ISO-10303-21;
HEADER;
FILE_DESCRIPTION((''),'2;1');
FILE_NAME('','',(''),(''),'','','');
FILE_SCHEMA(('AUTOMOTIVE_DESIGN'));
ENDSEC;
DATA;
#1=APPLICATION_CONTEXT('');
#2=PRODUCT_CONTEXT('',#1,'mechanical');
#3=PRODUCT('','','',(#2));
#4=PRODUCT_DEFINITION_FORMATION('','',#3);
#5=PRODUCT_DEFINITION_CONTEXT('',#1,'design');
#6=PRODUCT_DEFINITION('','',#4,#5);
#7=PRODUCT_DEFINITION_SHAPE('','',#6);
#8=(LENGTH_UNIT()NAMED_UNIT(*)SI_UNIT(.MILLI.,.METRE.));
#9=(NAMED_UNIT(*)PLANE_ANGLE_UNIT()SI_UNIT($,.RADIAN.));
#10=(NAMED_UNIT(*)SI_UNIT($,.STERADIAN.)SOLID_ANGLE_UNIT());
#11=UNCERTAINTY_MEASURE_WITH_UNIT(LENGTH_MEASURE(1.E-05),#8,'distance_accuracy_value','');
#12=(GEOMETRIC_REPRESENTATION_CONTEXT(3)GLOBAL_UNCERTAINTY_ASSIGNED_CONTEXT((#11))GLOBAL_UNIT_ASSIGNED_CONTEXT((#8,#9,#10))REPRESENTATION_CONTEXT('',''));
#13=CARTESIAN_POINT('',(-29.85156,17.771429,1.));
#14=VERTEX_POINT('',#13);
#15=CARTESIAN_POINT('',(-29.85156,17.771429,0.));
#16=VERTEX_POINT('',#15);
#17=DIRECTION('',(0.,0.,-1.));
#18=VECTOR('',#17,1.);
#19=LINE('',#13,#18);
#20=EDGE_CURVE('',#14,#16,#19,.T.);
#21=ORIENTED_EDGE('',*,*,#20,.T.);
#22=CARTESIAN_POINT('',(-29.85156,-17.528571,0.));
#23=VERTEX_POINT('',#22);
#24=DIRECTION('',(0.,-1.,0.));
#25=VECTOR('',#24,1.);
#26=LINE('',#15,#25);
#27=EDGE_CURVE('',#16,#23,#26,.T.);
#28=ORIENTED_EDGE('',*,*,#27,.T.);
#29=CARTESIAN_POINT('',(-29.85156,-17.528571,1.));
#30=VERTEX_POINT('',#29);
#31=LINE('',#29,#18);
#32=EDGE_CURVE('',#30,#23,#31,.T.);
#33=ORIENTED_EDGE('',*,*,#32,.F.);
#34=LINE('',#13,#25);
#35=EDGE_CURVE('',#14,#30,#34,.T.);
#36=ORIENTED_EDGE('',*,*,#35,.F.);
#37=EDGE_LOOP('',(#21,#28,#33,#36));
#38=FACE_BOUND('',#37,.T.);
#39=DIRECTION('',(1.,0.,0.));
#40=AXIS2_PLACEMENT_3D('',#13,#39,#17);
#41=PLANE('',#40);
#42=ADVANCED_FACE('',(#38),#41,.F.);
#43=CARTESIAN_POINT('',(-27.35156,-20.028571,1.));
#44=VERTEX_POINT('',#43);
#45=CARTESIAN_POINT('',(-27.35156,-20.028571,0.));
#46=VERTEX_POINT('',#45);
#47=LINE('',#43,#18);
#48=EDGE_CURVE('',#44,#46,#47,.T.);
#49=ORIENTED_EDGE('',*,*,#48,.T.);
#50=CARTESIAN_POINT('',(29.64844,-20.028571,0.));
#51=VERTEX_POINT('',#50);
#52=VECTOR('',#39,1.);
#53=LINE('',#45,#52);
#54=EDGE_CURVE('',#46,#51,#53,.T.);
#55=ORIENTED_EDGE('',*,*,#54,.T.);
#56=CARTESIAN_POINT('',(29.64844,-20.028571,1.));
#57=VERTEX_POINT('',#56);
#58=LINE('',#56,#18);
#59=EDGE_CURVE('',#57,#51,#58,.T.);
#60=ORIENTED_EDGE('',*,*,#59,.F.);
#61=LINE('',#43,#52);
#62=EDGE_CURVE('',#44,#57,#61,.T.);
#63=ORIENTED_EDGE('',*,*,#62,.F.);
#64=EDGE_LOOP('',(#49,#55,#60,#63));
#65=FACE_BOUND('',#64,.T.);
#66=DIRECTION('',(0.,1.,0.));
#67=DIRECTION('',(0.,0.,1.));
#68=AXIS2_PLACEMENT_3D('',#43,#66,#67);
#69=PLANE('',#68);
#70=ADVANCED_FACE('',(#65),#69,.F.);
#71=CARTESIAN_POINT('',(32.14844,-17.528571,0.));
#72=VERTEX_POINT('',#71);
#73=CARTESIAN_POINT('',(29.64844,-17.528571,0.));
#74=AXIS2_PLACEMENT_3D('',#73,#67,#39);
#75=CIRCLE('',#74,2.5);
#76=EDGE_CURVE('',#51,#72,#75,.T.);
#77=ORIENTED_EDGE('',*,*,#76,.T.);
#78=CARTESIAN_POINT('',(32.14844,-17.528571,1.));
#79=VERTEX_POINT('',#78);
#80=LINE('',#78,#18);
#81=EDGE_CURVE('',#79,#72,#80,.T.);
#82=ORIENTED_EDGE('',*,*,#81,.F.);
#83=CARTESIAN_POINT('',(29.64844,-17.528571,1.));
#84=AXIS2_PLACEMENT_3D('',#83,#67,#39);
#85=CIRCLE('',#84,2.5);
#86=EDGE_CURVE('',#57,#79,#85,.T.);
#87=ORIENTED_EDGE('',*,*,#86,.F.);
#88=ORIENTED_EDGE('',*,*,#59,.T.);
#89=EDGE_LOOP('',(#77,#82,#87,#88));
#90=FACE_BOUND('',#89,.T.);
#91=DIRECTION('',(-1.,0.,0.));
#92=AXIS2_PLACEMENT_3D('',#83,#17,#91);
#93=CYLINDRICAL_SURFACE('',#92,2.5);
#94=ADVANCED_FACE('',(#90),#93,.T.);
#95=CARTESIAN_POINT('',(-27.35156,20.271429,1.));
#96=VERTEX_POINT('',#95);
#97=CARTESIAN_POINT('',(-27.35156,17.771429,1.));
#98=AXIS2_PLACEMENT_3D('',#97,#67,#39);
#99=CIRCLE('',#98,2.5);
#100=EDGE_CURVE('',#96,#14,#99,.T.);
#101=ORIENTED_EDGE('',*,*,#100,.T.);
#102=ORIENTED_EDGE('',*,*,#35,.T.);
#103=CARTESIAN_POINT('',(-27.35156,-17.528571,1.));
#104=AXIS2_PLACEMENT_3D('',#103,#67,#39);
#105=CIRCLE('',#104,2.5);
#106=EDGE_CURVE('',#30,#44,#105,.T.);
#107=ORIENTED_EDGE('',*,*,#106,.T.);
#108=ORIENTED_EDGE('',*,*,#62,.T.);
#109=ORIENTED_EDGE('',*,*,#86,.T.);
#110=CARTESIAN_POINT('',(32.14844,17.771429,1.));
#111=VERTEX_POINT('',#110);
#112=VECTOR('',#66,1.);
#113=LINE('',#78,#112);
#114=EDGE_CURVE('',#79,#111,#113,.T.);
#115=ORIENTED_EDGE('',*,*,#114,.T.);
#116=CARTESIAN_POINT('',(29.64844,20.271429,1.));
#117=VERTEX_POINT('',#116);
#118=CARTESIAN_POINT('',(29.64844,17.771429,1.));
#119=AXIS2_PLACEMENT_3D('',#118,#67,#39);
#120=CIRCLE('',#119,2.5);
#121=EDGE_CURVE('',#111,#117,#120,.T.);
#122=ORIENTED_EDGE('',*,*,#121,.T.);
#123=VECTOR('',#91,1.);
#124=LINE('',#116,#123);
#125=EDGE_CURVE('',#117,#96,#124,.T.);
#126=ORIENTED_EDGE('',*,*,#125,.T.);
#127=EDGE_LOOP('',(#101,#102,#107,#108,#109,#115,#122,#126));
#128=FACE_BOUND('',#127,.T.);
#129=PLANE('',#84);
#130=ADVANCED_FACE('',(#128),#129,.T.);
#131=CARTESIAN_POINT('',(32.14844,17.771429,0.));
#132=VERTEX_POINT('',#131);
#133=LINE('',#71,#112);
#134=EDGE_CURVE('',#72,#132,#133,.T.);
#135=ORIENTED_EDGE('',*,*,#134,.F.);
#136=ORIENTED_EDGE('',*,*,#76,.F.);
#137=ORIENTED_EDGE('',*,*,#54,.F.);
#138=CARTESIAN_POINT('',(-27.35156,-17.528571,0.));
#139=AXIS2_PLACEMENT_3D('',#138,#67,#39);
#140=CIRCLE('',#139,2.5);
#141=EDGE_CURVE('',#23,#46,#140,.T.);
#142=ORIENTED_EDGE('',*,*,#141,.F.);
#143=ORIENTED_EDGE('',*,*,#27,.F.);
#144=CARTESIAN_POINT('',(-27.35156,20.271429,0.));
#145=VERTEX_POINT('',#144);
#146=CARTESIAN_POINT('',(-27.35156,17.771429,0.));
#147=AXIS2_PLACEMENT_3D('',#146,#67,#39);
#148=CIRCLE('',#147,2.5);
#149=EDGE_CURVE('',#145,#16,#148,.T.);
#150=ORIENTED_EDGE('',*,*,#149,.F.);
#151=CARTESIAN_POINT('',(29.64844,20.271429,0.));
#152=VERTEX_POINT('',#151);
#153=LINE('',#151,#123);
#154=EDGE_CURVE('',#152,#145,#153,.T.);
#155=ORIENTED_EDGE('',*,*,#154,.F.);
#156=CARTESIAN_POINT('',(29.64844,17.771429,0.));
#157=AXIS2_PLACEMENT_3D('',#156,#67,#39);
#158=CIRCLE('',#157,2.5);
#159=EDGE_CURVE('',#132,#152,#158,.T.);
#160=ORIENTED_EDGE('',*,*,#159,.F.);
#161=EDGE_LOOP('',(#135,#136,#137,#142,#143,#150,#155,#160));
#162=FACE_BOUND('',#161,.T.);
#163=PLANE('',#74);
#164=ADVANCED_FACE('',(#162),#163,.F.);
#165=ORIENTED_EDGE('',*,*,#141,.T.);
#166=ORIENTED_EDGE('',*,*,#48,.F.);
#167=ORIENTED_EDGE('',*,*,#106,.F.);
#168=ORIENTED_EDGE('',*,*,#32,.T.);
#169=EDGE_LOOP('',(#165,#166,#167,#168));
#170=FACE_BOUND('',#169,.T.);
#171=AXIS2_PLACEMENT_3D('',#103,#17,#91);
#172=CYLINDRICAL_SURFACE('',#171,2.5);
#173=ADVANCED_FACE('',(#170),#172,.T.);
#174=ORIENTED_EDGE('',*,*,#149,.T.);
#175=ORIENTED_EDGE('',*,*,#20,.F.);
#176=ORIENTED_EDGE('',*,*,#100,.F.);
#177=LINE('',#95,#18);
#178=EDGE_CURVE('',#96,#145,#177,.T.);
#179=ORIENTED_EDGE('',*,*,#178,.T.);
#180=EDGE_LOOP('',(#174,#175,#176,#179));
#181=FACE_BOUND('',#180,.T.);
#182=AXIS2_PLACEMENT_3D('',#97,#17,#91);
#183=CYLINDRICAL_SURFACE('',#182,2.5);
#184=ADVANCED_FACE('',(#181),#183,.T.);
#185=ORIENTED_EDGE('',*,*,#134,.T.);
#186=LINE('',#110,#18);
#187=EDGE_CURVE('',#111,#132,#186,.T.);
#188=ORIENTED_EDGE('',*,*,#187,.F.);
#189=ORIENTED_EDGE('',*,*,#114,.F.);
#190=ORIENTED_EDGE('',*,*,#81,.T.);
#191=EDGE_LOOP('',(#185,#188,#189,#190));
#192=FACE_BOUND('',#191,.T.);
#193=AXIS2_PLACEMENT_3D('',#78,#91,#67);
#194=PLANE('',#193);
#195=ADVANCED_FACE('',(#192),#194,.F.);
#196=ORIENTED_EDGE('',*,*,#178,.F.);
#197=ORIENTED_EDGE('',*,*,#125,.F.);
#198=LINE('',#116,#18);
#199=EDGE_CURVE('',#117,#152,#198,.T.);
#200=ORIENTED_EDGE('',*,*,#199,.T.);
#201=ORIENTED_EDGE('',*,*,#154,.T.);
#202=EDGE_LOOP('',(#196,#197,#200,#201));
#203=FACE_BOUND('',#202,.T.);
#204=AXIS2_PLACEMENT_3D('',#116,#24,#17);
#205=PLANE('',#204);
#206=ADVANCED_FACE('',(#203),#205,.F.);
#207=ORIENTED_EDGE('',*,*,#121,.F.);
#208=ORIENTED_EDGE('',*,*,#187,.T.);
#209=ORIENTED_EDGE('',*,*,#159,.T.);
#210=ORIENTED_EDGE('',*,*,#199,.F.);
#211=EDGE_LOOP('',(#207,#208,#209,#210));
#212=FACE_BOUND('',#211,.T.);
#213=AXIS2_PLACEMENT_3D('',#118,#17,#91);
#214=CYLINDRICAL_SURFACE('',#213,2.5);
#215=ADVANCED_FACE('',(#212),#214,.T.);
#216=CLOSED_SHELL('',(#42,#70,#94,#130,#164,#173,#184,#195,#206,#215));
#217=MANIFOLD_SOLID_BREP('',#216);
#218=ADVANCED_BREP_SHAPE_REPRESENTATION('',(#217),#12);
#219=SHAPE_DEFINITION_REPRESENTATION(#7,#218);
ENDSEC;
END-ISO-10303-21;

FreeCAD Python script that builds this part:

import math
import FreeCAD as App
import Part
import Sketcher
from FreeCAD import Vector
Q = App.Units.Quantity

doc = App.newDocument("Part")
body = doc.addObject("PartDesign::Body", "Body")

sketch1 = body.newObject("Sketcher::SketchObject", "Sketch")
sketch1.AttachmentSupport = (doc.getObject("XY_Plane"), [""])
sketch1.MapMode = "FlatFace"
sketch1.addGeometry([
    Part.LineSegment(Vector(32.1, -17.5, 0), Vector(32.1, 17.8, 0)),
    Part.ArcOfCircle(Part.Circle(Vector(29.6, 17.8, 0), Vector(0, 0, 1), 2.5), math.radians(0), math.radians(90)),
    Part.LineSegment(Vector(29.6, 20.3, 0), Vector(-27.4, 20.3, 0)),
    Part.ArcOfCircle(Part.Circle(Vector(-27.4, 17.8, 0), Vector(0, 0, 1), 2.5), math.radians(90), math.radians(180)),
    Part.LineSegment(Vector(-29.9, 17.8, 0), Vector(-29.9, -17.5, 0)),
    Part.ArcOfCircle(Part.Circle(Vector(-27.4, -17.5, 0), Vector(0, 0, 1), 2.5), math.radians(180), math.radians(270)),
    Part.LineSegment(Vector(-27.4, -20, 0), Vector(29.6, -20, 0)),
    Part.ArcOfCircle(Part.Circle(Vector(29.6, -17.5, 0), Vector(0, 0, 1), 2.5), math.radians(-90), math.radians(0)),
], False)
sketch1.addConstraint([
    Sketcher.Constraint("Tangent", 0, 2, 1, 1),
    Sketcher.Constraint("Tangent", 1, 2, 2, 1),
    Sketcher.Constraint("Tangent", 2, 2, 3, 1),
    Sketcher.Constraint("Tangent", 3, 2, 4, 1),
    Sketcher.Constraint("Tangent", 4, 2, 5, 1),
    Sketcher.Constraint("Tangent", 5, 2, 6, 1),
    Sketcher.Constraint("Tangent", 6, 2, 7, 1),
    Sketcher.Constraint("Tangent", 7, 2, 0, 1),
    Sketcher.Constraint("Vertical", 0),
    Sketcher.Constraint("Horizontal", 2),
    Sketcher.Constraint("Vertical", 4),
    Sketcher.Constraint("Horizontal", 6),
    Sketcher.Constraint("Equal", 1, 3),
    Sketcher.Constraint("Equal", 3, 5),
    Sketcher.Constraint("Equal", 5, 7),
    Sketcher.Constraint("Radius", 1, Q("2.5 mm")),
    Sketcher.Constraint("DistanceX", 2, 2, 2, 1, Q("57 mm")),
    Sketcher.Constraint("DistanceY", 0, 1, 0, 2, Q("35.3 mm")),
    Sketcher.Constraint("DistanceX", -1, 1, 1, 3, Q("29.64844 mm")),
    Sketcher.Constraint("DistanceY", -1, 1, 1, 3, Q("17.771429 mm")),
])
pad1 = body.newObject("PartDesign::Pad", "Pad")
pad1.Profile = sketch1
pad1.Length = 1

doc.recompute()
